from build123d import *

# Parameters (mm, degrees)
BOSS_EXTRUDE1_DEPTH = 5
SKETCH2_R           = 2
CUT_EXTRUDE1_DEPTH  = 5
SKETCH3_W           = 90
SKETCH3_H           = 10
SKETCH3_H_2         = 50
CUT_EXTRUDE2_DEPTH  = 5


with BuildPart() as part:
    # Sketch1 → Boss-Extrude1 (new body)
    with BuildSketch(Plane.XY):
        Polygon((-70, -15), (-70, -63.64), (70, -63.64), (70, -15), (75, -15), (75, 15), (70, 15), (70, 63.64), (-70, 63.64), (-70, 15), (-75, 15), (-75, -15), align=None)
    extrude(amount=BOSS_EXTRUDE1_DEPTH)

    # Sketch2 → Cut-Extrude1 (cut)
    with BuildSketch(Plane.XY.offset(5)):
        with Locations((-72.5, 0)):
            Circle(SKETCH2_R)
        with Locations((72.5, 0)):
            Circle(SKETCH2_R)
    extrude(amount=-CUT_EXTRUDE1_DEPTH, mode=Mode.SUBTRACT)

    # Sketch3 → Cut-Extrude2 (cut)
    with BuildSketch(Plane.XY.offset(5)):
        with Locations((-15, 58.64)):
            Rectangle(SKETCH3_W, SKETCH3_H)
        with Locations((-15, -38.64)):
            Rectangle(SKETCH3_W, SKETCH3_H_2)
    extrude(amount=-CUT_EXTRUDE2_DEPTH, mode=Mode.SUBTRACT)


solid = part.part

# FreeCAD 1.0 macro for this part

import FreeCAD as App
import Part
import Sketcher
Q = App.Units.Quantity


def add_polygon(sketch, points):
    """Adds a closed chain of lines whose ends are joined by coincident constraints."""
    first, n = sketch.GeometryCount, len(points)
    for a, b in zip(points, points[1:] + points[:1]):
        sketch.addGeometry(Part.LineSegment(App.Vector(*a, 0), App.Vector(*b, 0)), False)
    for i in range(n):
        sketch.addConstraint(Sketcher.Constraint("Coincident", first + i, 2, first + (i + 1) % n, 1))

doc = App.newDocument("Part")
body = doc.addObject("PartDesign::Body", "Body")

sketch1 = doc.addObject("Sketcher::SketchObject", "Sketch")
body.addObject(sketch1)
sketch1.AttachmentSupport = (doc.XY_Plane, [""])
sketch1.MapMode = "FlatFace"
add_polygon(sketch1, [(-70, -15), (-70, -63.64), (70, -63.64), (70, -15), (75, -15), (75, 15), (70, 15), (70, 63.64), (-70, 63.64), (-70, 15), (-75, 15), (-75, -15)])
sketch1.addConstraint([
    Sketcher.Constraint("Vertical", 0),
    Sketcher.Constraint("Horizontal", 1),
    Sketcher.Constraint("Vertical", 2),
    Sketcher.Constraint("Horizontal", 3),
    Sketcher.Constraint("Vertical", 4),
    Sketcher.Constraint("Horizontal", 5),
    Sketcher.Constraint("Vertical", 6),
    Sketcher.Constraint("Horizontal", 7),
    Sketcher.Constraint("Vertical", 8),
    Sketcher.Constraint("Horizontal", 9),
    Sketcher.Constraint("Vertical", 10),
    Sketcher.Constraint("Horizontal", 11),
    Sketcher.Constraint("Symmetric", 0, 2, 6, 2, -1, 1),
    Sketcher.Constraint("Symmetric", 2, 2, 8, 2, -1, 1),
    Sketcher.Constraint("Symmetric", 4, 2, 10, 2, -1, 1),
    Sketcher.Constraint("Symmetric", 5, 2, 8, 2, -2),
    Sketcher.Constraint("DistanceX", 1, 1, 1, 2, Q("140 mm")),
    Sketcher.Constraint("DistanceX", 3, 1, 3, 2, Q("5 mm")),
    Sketcher.Constraint("DistanceY", 4, 1, 4, 2, Q("30 mm")),
    Sketcher.Constraint("DistanceY", 0, 2, 0, 1, Q("48.64 mm")),
])
pad1 = doc.addObject("PartDesign::Pad", "Pad")
body.addObject(pad1)
pad1.Profile = sketch1
pad1.Length = 5

sketch2 = doc.addObject("Sketcher::SketchObject", "Sketch001")
body.addObject(sketch2)
sketch2.AttachmentSupport = (doc.XY_Plane, [""])
sketch2.MapMode = "FlatFace"
sketch2.AttachmentOffset = App.Placement(App.Vector(0, 0, 5), App.Rotation())
sketch2.addGeometry([
    Part.Circle(App.Vector(-72.5, 0, 0), App.Vector(0, 0, 1), 2),
    Part.Circle(App.Vector(72.5, 0, 0), App.Vector(0, 0, 1), 2),
], False)
sketch2.addConstraint([
    Sketcher.Constraint("Equal", 0, 1),
    Sketcher.Constraint("Symmetric", 0, 3, 1, 3, -1, 1),
    Sketcher.Constraint("PointOnObject", 0, 3, -1),
    Sketcher.Constraint("Diameter", 0, Q("4 mm")),
    Sketcher.Constraint("DistanceX", 0, 3, 1, 3, Q("145 mm")),
])
pocket1 = doc.addObject("PartDesign::Pocket", "Pocket")
body.addObject(pocket1)
pocket1.Profile = sketch2
pocket1.Length = 5

sketch3 = doc.addObject("Sketcher::SketchObject", "Sketch002")
body.addObject(sketch3)
sketch3.AttachmentSupport = (doc.XY_Plane, [""])
sketch3.MapMode = "FlatFace"
sketch3.AttachmentOffset = App.Placement(App.Vector(0, 0, 5), App.Rotation())
add_polygon(sketch3, [(-60, 63.64), (-60, 53.64), (30, 53.64), (30, 63.64)])
add_polygon(sketch3, [(-60, -13.64), (-60, -63.64), (30, -63.64), (30, -13.64)])
sketch3.addConstraint([
    Sketcher.Constraint("Vertical", 0),
    Sketcher.Constraint("Horizontal", 1),
    Sketcher.Constraint("Vertical", 2),
    Sketcher.Constraint("Horizontal", 3),
    Sketcher.Constraint("Vertical", 4),
    Sketcher.Constraint("Horizontal", 5),
    Sketcher.Constraint("Vertical", 6),
    Sketcher.Constraint("Horizontal", 7),
    Sketcher.Constraint("Symmetric", 3, 2, 4, 2, -1),
    Sketcher.Constraint("Vertical", 2, 2, 5, 2),
    Sketcher.Constraint("DistanceX", 1, 1, 1, 2, Q("90 mm")),
    Sketcher.Constraint("DistanceY", 0, 2, 0, 1, Q("10 mm")),
    Sketcher.Constraint("DistanceY", 4, 2, 4, 1, Q("50 mm")),
    Sketcher.Constraint("DistanceX", 0, 2, -1, 1, Q("60 mm")),
    Sketcher.Constraint("DistanceY", -1, 1, 0, 2, Q("53.64 mm")),
])
pocket2 = doc.addObject("PartDesign::Pocket", "Pocket001")
body.addObject(pocket2)
pocket2.Profile = sketch3
pocket2.Length = 5

doc.recompute()
